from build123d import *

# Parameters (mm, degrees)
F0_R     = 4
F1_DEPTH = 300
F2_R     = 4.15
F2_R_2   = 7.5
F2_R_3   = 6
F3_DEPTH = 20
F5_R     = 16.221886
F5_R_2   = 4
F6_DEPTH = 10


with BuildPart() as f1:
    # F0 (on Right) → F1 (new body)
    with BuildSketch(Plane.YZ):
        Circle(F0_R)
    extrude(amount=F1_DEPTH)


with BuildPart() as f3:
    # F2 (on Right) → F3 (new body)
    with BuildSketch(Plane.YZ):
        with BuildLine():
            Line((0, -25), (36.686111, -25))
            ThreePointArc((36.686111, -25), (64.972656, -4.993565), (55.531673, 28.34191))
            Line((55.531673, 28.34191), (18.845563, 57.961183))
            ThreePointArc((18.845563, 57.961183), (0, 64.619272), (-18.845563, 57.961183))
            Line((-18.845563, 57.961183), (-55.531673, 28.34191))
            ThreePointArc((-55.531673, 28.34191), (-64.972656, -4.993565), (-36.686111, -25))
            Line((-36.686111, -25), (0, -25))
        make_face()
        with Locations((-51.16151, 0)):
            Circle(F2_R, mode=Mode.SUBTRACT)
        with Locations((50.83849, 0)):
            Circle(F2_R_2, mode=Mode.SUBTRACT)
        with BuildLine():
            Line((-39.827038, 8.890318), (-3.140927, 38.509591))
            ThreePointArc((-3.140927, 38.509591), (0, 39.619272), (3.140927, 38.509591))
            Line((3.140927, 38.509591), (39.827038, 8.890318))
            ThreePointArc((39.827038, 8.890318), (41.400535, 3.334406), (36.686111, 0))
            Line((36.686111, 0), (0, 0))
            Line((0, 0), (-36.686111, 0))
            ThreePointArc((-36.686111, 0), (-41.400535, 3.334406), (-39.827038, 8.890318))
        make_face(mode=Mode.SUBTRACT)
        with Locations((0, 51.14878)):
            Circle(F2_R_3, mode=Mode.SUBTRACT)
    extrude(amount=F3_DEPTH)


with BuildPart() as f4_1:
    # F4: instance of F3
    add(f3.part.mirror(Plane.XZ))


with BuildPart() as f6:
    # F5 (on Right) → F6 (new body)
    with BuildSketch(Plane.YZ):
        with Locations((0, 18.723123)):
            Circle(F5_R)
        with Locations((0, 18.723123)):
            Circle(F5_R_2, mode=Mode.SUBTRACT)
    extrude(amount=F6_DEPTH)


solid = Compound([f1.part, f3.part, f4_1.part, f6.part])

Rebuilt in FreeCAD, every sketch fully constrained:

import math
import FreeCAD as App
import Part
import Sketcher
from FreeCAD import Vector

doc = App.newDocument("Part")
body = doc.addObject("PartDesign::Body", "Body")

sketch1 = body.newObject("Sketcher::SketchObject", "Sketch")
sketch1.AttachmentSupport = (doc.getObject("YZ_Plane"), [""])
sketch1.MapMode = "FlatFace"
sketch1.addGeometry(Part.Circle(Vector(0, 0, 0), Vector(0, 0, 1), 4), False)
sketch1.addConstraint(Sketcher.Constraint("Coincident", 0, 3, -1, 1))
sketch1.addConstraint(Sketcher.Constraint("Diameter", 0, 8.0))
pad1 = body.newObject("PartDesign::Pad", "Pad")
pad1.Profile = sketch1
pad1.Length = 300
body2 = doc.addObject("PartDesign::Body", "Body001")

sketch2 = body2.newObject("Sketcher::SketchObject", "Sketch001")
sketch2.AttachmentSupport = (doc.getObject("YZ_Plane001"), [""])
sketch2.MapMode = "FlatFace"
sketch2.addGeometry(Part.ArcOfCircle(Part.Circle(Vector(36.686111, 5, 0), Vector(0, 0, 1), 30), math.radians(-89.999999), math.radians(51.083628)), False)
sketch2.addGeometry(Part.LineSegment(Vector(55.531673, 28.34191, 0), Vector(18.845563, 57.961183, 0)), False)
sketch2.addGeometry(Part.ArcOfCircle(Part.Circle(Vector(0, 34.619268, 0), Vector(0, 0, 1), 30.000004), math.radians(51.083633), math.radians(128.916367)), False)
sketch2.addGeometry(Part.LineSegment(Vector(-18.845563, 57.961183, 0), Vector(-55.531673, 28.34191, 0)), False)
sketch2.addGeometry(Part.ArcOfCircle(Part.Circle(Vector(-36.686111, 5, 0), Vector(0, 0, 1), 30), math.radians(128.916372), math.radians(269.999999)), False)
sketch2.addGeometry(Part.LineSegment(Vector(-36.686111, -25, 0), Vector(36.686111, -25, 0)), False)
sketch2.addGeometry(Part.Circle(Vector(-51.16151, 0, 0), Vector(0, 0, 1), 4.15), False)
sketch2.addGeometry(Part.ArcOfCircle(Part.Circle(Vector(-36.686111, 5, 0), Vector(0, 0, 1), 5), math.radians(128.916376), math.radians(269.999997)), False)
sketch2.addGeometry(Part.LineSegment(Vector(-39.827038, 8.890318, 0), Vector(-3.140927, 38.509591, 0)), False)
sketch2.addGeometry(Part.ArcOfCircle(Part.Circle(Vector(0, 34.61927, 0), Vector(0, 0, 1), 5.000002), math.radians(51.083647), math.radians(128.916353)), False)
sketch2.addGeometry(Part.LineSegment(Vector(3.140927, 38.509591, 0), Vector(39.827038, 8.890318, 0)), False)
sketch2.addGeometry(Part.ArcOfCircle(Part.Circle(Vector(36.686111, 5, 0), Vector(0, 0, 1), 5), math.radians(-89.999997), math.radians(51.083624)), False)
sketch2.addGeometry(Part.LineSegment(Vector(36.686111, 0, 0), Vector(-36.686111, 0, 0)), False)
sketch2.addGeometry(Part.Circle(Vector(50.83849, 0, 0), Vector(0, 0, 1), 7.5), False)
sketch2.addGeometry(Part.Circle(Vector(0, 51.14878, 0), Vector(0, 0, 1), 6), False)
sketch2.addConstraint(Sketcher.Constraint("Tangent", 0, 2, 1, 1))
sketch2.addConstraint(Sketcher.Constraint("Tangent", 1, 2, 2, 1))
sketch2.addConstraint(Sketcher.Constraint("Tangent", 2, 2, 3, 1))
sketch2.addConstraint(Sketcher.Constraint("Tangent", 3, 2, 4, 1))
sketch2.addConstraint(Sketcher.Constraint("Tangent", 4, 2, 5, 1))
sketch2.addConstraint(Sketcher.Constraint("Tangent", 5, 2, 0, 1))
sketch2.addConstraint(Sketcher.Constraint("Tangent", 7, 1, 8, 1))
sketch2.addConstraint(Sketcher.Constraint("Tangent", 8, 2, 9, 2))
sketch2.addConstraint(Sketcher.Constraint("Tangent", 9, 1, 10, 1))
sketch2.addConstraint(Sketcher.Constraint("Tangent", 10, 2, 11, 2))
sketch2.addConstraint(Sketcher.Constraint("Tangent", 11, 1, 12, 1))
sketch2.addConstraint(Sketcher.Constraint("Tangent", 12, 2, 7, 2))
sketch2.addConstraint(Sketcher.Constraint("Horizontal", 5))
sketch2.addConstraint(Sketcher.Constraint("Horizontal", 12))
sketch2.addConstraint(Sketcher.Constraint("Coincident", 7, 3, 4, 3))
sketch2.addConstraint(Sketcher.Constraint("Coincident", 9, 3, 2, 3))
sketch2.addConstraint(Sketcher.Constraint("Coincident", 11, 3, 0, 3))
sketch2.addConstraint(Sketcher.Constraint("Equal", 0, 4))
sketch2.addConstraint(Sketcher.Constraint("Symmetric", 11, 1, 12, 2, -1, 1))
sketch2.addConstraint(Sketcher.Constraint("PointOnObject", 2, 3, -2))
sketch2.addConstraint(Sketcher.Constraint("PointOnObject", 6, 3, -1))
sketch2.addConstraint(Sketcher.Constraint("PointOnObject", 13, 3, -1))
sketch2.addConstraint(Sketcher.Constraint("PointOnObject", 14, 3, -2))
sketch2.addConstraint(Sketcher.Constraint("Parallel", 3, 8))
sketch2.addConstraint(Sketcher.Constraint("Diameter", 13, 15.0))
sketch2.addConstraint(Sketcher.Constraint("Diameter", 14, 12.0))
sketch2.addConstraint(Sketcher.Constraint("Radius", 0, 30.0))
sketch2.addConstraint(Sketcher.Constraint("Radius", 7, 5.0))
sketch2.addConstraint(Sketcher.Constraint("Radius", 9, 5.000002))
sketch2.addConstraint(Sketcher.Constraint("Diameter", 6, 8.3))
sketch2.addConstraint(Sketcher.Constraint("DistanceX", 5, 1, 5, 2, 73.372222))
sketch2.addConstraint(Sketcher.Constraint("DistanceX", 6, 3, 4, 3, 14.475399))
sketch2.addConstraint(Sketcher.Constraint("DistanceX", 4, 3, 13, 3, 87.524601))
sketch2.addConstraint(Sketcher.Constraint("DistanceY", -1, 1, 9, 3, 34.61927))
sketch2.addConstraint(Sketcher.Constraint("DistanceY", -1, 1, 14, 3, 51.14878))
pad2 = body2.newObject("PartDesign::Pad", "Pad001")
pad2.Profile = sketch2
pad2.Length = 20
body3 = doc.addObject("PartDesign::Body", "Body002")
doc.recompute()

mirroring = doc.addObject("Part::Mirroring", "Mirroring")
mirroring.Source = body2
mirroring.Base = Vector(0, 0, 0)
mirroring.Normal = Vector(0, -1, 0)
body3.BaseFeature = mirroring
doc.recompute()
body4 = doc.addObject("PartDesign::Body", "Body003")

sketch3 = body4.newObject("Sketcher::SketchObject", "Sketch002")
sketch3.AttachmentSupport = (doc.getObject("YZ_Plane003"), [""])
sketch3.MapMode = "FlatFace"
sketch3.addGeometry(Part.Circle(Vector(0, 18.723123, 0), Vector(0, 0, 1), 16.221886), False)
sketch3.addGeometry(Part.Circle(Vector(0, 18.723123, 0), Vector(0, 0, 1), 4), False)
sketch3.addConstraint(Sketcher.Constraint("Coincident", 1, 3, 0, 3))
sketch3.addConstraint(Sketcher.Constraint("PointOnObject", 0, 3, -2))
sketch3.addConstraint(Sketcher.Constraint("Diameter", 1, 8.0))
sketch3.addConstraint(Sketcher.Constraint("Diameter", 0, 32.443772))
sketch3.addConstraint(Sketcher.Constraint("DistanceY", -1, 1, 0, 3, 18.723123))
pad3 = body4.newObject("PartDesign::Pad", "Pad002")
pad3.Profile = sketch3
pad3.Length = 10
mirroring.Visibility = False

doc.recompute()
